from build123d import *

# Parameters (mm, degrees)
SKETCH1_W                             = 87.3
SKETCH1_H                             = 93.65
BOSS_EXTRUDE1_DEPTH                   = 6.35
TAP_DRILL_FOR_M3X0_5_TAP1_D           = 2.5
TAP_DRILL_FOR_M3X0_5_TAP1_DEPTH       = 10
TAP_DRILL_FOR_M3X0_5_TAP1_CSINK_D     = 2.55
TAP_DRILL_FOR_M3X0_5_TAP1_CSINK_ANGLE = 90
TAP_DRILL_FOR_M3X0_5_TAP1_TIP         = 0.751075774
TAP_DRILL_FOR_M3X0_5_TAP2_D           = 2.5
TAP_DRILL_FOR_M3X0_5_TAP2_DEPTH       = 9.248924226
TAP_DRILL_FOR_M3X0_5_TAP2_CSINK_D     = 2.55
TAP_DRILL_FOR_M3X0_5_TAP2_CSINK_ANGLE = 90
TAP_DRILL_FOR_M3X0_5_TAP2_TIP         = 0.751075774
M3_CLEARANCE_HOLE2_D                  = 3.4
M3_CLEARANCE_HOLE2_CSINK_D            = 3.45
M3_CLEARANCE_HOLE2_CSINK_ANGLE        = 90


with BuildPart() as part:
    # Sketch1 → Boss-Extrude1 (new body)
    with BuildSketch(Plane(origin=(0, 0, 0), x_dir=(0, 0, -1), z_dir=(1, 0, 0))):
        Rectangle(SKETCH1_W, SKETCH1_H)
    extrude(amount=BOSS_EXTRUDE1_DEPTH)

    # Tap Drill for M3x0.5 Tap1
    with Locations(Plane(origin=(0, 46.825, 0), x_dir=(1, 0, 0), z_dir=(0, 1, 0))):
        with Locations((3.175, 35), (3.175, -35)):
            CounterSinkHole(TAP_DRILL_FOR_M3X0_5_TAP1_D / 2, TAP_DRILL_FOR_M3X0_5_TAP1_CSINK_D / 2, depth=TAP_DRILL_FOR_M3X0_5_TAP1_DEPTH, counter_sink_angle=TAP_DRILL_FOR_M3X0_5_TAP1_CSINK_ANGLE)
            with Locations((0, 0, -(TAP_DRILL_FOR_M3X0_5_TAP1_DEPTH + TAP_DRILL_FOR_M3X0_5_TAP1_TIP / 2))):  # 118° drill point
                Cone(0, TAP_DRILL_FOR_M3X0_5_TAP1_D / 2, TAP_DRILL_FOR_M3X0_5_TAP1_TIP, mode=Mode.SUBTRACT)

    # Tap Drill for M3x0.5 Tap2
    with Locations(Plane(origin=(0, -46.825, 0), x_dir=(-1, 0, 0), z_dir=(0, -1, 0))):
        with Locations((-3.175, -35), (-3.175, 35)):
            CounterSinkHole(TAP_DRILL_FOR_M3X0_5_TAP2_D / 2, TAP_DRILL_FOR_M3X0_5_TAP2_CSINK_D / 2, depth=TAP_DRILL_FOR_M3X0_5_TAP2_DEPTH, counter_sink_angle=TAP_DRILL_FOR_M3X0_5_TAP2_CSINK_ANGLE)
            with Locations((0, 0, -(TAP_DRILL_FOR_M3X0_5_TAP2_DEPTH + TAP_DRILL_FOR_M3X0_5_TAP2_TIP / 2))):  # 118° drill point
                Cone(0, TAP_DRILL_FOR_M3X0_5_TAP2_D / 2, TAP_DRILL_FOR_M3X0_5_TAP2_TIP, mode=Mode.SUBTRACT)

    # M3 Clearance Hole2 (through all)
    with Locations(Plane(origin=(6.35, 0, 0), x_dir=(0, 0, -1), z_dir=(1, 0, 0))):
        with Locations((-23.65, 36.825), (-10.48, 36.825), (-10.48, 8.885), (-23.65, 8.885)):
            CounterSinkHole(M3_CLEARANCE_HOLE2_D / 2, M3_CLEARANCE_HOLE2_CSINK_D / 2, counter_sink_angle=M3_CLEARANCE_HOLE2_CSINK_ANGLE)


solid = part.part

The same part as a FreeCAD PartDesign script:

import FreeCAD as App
import Part
import Sketcher
from FreeCAD import Vector
Q = App.Units.Quantity

doc = App.newDocument("Part")
body = doc.addObject("PartDesign::Body", "Body")

sketch1 = doc.addObject("Sketcher::SketchObject", "Sketch")
body.addObject(sketch1)
sketch1.AttachmentSupport = (doc.YZ_Plane, [""])
sketch1.MapMode = "FlatFace"
sketch1.addGeometry(Part.LineSegment(Vector(47, 44, 0), Vector(-47, 44, 0)), False)
sketch1.addGeometry(Part.LineSegment(Vector(-47, 44, 0), Vector(-47, -44, 0)), False)
sketch1.addGeometry(Part.LineSegment(Vector(-47, -44, 0), Vector(47, -44, 0)), False)
sketch1.addGeometry(Part.LineSegment(Vector(47, -44, 0), Vector(47, 44, 0)), False)
sketch1.addConstraint(Sketcher.Constraint("Coincident", 0, 2, 1, 1))
sketch1.addConstraint(Sketcher.Constraint("Coincident", 1, 2, 2, 1))
sketch1.addConstraint(Sketcher.Constraint("Coincident", 2, 2, 3, 1))
sketch1.addConstraint(Sketcher.Constraint("Coincident", 3, 2, 0, 1))
sketch1.addConstraint(Sketcher.Constraint("Horizontal", 0))
sketch1.addConstraint(Sketcher.Constraint("Vertical", 1))
sketch1.addConstraint(Sketcher.Constraint("Horizontal", 2))
sketch1.addConstraint(Sketcher.Constraint("Vertical", 3))
sketch1.addConstraint(Sketcher.Constraint("Symmetric", 0, 2, 2, 2, -1, 1))
sketch1.addConstraint(Sketcher.Constraint("DistanceY", 1, 2, 1, 1, Q("87.3 mm")))
sketch1.addConstraint(Sketcher.Constraint("DistanceX", 0, 2, 0, 1, Q("93.65 mm")))
pad1 = doc.addObject("PartDesign::Pad", "Pad")
body.addObject(pad1)
pad1.Profile = sketch1
pad1.Length = 6.35

sketch2 = doc.addObject("Sketcher::SketchObject", "Sketch001")
body.addObject(sketch2)
sketch2.AttachmentSupport = (doc.XZ_Plane, [""])
sketch2.MapMode = "FlatFace"
sketch2.AttachmentOffset = App.Placement(Vector(0, 0, -46.825), App.Rotation())
sketch2.addGeometry(Part.Circle(Vector(3.2, -35, 0), Vector(0, 0, 1), 1.2), False)
sketch2.addGeometry(Part.Circle(Vector(3.2, 35, 0), Vector(0, 0, 1), 1.2), False)
sketch2.addConstraint(Sketcher.Constraint("Equal", 0, 1))
sketch2.addConstraint(Sketcher.Constraint("Symmetric", 0, 3, 1, 3, -1))
sketch2.addConstraint(Sketcher.Constraint("Diameter", 0, Q("2.5 mm")))
sketch2.addConstraint(Sketcher.Constraint("DistanceY", 0, 3, -1, 1, Q("35 mm")))
sketch2.addConstraint(Sketcher.Constraint("DistanceX", -1, 1, 0, 3, Q("3.175 mm")))
doc.recompute()
hole = doc.addObject("PartDesign::Hole", "Hole")
body.addObject(hole)
hole.Profile = sketch2
hole.ThreadType = "None"
hole.Diameter = 2.5
hole.DepthType = "Dimension"
hole.Depth = 10
hole.DrillPoint = "Angled"
hole.DrillPointAngle = 118
hole.HoleCutType = "Countersink"
hole.HoleCutDiameter = 2.55
hole.HoleCutCountersinkAngle = 90
hole.Reversed = True

sketch3 = doc.addObject("Sketcher::SketchObject", "Sketch002")
body.addObject(sketch3)
sketch3.AttachmentSupport = (doc.XZ_Plane, [""])
sketch3.MapMode = "FlatFace"
sketch3.AttachmentOffset = App.Placement(Vector(0, 0, 46.825), App.Rotation())
sketch3.addGeometry(Part.Circle(Vector(3.2, 35, 0), Vector(0, 0, 1), 1.2), False)
sketch3.addGeometry(Part.Circle(Vector(3.2, -35, 0), Vector(0, 0, 1), 1.2), False)
sketch3.addConstraint(Sketcher.Constraint("Equal", 0, 1))
sketch3.addConstraint(Sketcher.Constraint("Symmetric", 0, 3, 1, 3, -1))
sketch3.addConstraint(Sketcher.Constraint("Diameter", 0, Q("2.5 mm")))
sketch3.addConstraint(Sketcher.Constraint("DistanceY", -1, 1, 0, 3, Q("35 mm")))
sketch3.addConstraint(Sketcher.Constraint("DistanceX", -1, 1, 0, 3, Q("3.175 mm")))
doc.recompute()
hole2 = doc.addObject("PartDesign::Hole", "Hole001")
body.addObject(hole2)
hole2.Profile = sketch3
hole2.ThreadType = "None"
hole2.Diameter = 2.5
hole2.DepthType = "Dimension"
hole2.Depth = 9.248924
hole2.DrillPoint = "Angled"
hole2.DrillPointAngle = 118
hole2.HoleCutType = "Countersink"
hole2.HoleCutDiameter = 2.55
hole2.HoleCutCountersinkAngle = 90

sketch4 = doc.addObject("Sketcher::SketchObject", "Sketch003")
body.addObject(sketch4)
sketch4.AttachmentSupport = (doc.YZ_Plane, [""])
sketch4.MapMode = "FlatFace"
sketch4.AttachmentOffset = App.Placement(Vector(0, 0, 6.35), App.Rotation())
sketch4.addGeometry(Part.Circle(Vector(36.8, 23.6, 0), Vector(0, 0, 1), 1.7), False)
sketch4.addGeometry(Part.Circle(Vector(36.8, 10.5, 0), Vector(0, 0, 1), 1.7), False)
sketch4.addGeometry(Part.Circle(Vector(8.9, 10.5, 0), Vector(0, 0, 1), 1.7), False)
sketch4.addGeometry(Part.Circle(Vector(8.9, 23.6, 0), Vector(0, 0, 1), 1.7), False)
sketch4.addConstraint(Sketcher.Constraint("Equal", 0, 1))
sketch4.addConstraint(Sketcher.Constraint("Equal", 1, 2))
sketch4.addConstraint(Sketcher.Constraint("Equal", 2, 3))
sketch4.addConstraint(Sketcher.Constraint("Horizontal", 1, 3, 2, 3))
sketch4.addConstraint(Sketcher.Constraint("Horizontal", 0, 3, 3, 3))
sketch4.addConstraint(Sketcher.Constraint("Vertical", 0, 3, 1, 3))
sketch4.addConstraint(Sketcher.Constraint("Vertical", 2, 3, 3, 3))
sketch4.addConstraint(Sketcher.Constraint("Diameter", 0, Q("3.4 mm")))
sketch4.addConstraint(Sketcher.Constraint("DistanceY", -1, 1, 0, 3, Q("23.65 mm")))
sketch4.addConstraint(Sketcher.Constraint("DistanceY", -1, 1, 1, 3, Q("10.48 mm")))
sketch4.addConstraint(Sketcher.Constraint("DistanceX", 2, 3, 1, 3, Q("27.94 mm")))
sketch4.addConstraint(Sketcher.Constraint("DistanceX", -1, 1, 0, 3, Q("36.825 mm")))
doc.recompute()
hole3 = doc.addObject("PartDesign::Hole", "Hole002")
body.addObject(hole3)
hole3.Profile = sketch4
hole3.ThreadType = "None"
hole3.Diameter = 3.4
hole3.DepthType = "ThroughAll"
hole3.HoleCutType = "Countersink"
hole3.HoleCutDiameter = 3.45
hole3.HoleCutCountersinkAngle = 90

doc.recompute()
